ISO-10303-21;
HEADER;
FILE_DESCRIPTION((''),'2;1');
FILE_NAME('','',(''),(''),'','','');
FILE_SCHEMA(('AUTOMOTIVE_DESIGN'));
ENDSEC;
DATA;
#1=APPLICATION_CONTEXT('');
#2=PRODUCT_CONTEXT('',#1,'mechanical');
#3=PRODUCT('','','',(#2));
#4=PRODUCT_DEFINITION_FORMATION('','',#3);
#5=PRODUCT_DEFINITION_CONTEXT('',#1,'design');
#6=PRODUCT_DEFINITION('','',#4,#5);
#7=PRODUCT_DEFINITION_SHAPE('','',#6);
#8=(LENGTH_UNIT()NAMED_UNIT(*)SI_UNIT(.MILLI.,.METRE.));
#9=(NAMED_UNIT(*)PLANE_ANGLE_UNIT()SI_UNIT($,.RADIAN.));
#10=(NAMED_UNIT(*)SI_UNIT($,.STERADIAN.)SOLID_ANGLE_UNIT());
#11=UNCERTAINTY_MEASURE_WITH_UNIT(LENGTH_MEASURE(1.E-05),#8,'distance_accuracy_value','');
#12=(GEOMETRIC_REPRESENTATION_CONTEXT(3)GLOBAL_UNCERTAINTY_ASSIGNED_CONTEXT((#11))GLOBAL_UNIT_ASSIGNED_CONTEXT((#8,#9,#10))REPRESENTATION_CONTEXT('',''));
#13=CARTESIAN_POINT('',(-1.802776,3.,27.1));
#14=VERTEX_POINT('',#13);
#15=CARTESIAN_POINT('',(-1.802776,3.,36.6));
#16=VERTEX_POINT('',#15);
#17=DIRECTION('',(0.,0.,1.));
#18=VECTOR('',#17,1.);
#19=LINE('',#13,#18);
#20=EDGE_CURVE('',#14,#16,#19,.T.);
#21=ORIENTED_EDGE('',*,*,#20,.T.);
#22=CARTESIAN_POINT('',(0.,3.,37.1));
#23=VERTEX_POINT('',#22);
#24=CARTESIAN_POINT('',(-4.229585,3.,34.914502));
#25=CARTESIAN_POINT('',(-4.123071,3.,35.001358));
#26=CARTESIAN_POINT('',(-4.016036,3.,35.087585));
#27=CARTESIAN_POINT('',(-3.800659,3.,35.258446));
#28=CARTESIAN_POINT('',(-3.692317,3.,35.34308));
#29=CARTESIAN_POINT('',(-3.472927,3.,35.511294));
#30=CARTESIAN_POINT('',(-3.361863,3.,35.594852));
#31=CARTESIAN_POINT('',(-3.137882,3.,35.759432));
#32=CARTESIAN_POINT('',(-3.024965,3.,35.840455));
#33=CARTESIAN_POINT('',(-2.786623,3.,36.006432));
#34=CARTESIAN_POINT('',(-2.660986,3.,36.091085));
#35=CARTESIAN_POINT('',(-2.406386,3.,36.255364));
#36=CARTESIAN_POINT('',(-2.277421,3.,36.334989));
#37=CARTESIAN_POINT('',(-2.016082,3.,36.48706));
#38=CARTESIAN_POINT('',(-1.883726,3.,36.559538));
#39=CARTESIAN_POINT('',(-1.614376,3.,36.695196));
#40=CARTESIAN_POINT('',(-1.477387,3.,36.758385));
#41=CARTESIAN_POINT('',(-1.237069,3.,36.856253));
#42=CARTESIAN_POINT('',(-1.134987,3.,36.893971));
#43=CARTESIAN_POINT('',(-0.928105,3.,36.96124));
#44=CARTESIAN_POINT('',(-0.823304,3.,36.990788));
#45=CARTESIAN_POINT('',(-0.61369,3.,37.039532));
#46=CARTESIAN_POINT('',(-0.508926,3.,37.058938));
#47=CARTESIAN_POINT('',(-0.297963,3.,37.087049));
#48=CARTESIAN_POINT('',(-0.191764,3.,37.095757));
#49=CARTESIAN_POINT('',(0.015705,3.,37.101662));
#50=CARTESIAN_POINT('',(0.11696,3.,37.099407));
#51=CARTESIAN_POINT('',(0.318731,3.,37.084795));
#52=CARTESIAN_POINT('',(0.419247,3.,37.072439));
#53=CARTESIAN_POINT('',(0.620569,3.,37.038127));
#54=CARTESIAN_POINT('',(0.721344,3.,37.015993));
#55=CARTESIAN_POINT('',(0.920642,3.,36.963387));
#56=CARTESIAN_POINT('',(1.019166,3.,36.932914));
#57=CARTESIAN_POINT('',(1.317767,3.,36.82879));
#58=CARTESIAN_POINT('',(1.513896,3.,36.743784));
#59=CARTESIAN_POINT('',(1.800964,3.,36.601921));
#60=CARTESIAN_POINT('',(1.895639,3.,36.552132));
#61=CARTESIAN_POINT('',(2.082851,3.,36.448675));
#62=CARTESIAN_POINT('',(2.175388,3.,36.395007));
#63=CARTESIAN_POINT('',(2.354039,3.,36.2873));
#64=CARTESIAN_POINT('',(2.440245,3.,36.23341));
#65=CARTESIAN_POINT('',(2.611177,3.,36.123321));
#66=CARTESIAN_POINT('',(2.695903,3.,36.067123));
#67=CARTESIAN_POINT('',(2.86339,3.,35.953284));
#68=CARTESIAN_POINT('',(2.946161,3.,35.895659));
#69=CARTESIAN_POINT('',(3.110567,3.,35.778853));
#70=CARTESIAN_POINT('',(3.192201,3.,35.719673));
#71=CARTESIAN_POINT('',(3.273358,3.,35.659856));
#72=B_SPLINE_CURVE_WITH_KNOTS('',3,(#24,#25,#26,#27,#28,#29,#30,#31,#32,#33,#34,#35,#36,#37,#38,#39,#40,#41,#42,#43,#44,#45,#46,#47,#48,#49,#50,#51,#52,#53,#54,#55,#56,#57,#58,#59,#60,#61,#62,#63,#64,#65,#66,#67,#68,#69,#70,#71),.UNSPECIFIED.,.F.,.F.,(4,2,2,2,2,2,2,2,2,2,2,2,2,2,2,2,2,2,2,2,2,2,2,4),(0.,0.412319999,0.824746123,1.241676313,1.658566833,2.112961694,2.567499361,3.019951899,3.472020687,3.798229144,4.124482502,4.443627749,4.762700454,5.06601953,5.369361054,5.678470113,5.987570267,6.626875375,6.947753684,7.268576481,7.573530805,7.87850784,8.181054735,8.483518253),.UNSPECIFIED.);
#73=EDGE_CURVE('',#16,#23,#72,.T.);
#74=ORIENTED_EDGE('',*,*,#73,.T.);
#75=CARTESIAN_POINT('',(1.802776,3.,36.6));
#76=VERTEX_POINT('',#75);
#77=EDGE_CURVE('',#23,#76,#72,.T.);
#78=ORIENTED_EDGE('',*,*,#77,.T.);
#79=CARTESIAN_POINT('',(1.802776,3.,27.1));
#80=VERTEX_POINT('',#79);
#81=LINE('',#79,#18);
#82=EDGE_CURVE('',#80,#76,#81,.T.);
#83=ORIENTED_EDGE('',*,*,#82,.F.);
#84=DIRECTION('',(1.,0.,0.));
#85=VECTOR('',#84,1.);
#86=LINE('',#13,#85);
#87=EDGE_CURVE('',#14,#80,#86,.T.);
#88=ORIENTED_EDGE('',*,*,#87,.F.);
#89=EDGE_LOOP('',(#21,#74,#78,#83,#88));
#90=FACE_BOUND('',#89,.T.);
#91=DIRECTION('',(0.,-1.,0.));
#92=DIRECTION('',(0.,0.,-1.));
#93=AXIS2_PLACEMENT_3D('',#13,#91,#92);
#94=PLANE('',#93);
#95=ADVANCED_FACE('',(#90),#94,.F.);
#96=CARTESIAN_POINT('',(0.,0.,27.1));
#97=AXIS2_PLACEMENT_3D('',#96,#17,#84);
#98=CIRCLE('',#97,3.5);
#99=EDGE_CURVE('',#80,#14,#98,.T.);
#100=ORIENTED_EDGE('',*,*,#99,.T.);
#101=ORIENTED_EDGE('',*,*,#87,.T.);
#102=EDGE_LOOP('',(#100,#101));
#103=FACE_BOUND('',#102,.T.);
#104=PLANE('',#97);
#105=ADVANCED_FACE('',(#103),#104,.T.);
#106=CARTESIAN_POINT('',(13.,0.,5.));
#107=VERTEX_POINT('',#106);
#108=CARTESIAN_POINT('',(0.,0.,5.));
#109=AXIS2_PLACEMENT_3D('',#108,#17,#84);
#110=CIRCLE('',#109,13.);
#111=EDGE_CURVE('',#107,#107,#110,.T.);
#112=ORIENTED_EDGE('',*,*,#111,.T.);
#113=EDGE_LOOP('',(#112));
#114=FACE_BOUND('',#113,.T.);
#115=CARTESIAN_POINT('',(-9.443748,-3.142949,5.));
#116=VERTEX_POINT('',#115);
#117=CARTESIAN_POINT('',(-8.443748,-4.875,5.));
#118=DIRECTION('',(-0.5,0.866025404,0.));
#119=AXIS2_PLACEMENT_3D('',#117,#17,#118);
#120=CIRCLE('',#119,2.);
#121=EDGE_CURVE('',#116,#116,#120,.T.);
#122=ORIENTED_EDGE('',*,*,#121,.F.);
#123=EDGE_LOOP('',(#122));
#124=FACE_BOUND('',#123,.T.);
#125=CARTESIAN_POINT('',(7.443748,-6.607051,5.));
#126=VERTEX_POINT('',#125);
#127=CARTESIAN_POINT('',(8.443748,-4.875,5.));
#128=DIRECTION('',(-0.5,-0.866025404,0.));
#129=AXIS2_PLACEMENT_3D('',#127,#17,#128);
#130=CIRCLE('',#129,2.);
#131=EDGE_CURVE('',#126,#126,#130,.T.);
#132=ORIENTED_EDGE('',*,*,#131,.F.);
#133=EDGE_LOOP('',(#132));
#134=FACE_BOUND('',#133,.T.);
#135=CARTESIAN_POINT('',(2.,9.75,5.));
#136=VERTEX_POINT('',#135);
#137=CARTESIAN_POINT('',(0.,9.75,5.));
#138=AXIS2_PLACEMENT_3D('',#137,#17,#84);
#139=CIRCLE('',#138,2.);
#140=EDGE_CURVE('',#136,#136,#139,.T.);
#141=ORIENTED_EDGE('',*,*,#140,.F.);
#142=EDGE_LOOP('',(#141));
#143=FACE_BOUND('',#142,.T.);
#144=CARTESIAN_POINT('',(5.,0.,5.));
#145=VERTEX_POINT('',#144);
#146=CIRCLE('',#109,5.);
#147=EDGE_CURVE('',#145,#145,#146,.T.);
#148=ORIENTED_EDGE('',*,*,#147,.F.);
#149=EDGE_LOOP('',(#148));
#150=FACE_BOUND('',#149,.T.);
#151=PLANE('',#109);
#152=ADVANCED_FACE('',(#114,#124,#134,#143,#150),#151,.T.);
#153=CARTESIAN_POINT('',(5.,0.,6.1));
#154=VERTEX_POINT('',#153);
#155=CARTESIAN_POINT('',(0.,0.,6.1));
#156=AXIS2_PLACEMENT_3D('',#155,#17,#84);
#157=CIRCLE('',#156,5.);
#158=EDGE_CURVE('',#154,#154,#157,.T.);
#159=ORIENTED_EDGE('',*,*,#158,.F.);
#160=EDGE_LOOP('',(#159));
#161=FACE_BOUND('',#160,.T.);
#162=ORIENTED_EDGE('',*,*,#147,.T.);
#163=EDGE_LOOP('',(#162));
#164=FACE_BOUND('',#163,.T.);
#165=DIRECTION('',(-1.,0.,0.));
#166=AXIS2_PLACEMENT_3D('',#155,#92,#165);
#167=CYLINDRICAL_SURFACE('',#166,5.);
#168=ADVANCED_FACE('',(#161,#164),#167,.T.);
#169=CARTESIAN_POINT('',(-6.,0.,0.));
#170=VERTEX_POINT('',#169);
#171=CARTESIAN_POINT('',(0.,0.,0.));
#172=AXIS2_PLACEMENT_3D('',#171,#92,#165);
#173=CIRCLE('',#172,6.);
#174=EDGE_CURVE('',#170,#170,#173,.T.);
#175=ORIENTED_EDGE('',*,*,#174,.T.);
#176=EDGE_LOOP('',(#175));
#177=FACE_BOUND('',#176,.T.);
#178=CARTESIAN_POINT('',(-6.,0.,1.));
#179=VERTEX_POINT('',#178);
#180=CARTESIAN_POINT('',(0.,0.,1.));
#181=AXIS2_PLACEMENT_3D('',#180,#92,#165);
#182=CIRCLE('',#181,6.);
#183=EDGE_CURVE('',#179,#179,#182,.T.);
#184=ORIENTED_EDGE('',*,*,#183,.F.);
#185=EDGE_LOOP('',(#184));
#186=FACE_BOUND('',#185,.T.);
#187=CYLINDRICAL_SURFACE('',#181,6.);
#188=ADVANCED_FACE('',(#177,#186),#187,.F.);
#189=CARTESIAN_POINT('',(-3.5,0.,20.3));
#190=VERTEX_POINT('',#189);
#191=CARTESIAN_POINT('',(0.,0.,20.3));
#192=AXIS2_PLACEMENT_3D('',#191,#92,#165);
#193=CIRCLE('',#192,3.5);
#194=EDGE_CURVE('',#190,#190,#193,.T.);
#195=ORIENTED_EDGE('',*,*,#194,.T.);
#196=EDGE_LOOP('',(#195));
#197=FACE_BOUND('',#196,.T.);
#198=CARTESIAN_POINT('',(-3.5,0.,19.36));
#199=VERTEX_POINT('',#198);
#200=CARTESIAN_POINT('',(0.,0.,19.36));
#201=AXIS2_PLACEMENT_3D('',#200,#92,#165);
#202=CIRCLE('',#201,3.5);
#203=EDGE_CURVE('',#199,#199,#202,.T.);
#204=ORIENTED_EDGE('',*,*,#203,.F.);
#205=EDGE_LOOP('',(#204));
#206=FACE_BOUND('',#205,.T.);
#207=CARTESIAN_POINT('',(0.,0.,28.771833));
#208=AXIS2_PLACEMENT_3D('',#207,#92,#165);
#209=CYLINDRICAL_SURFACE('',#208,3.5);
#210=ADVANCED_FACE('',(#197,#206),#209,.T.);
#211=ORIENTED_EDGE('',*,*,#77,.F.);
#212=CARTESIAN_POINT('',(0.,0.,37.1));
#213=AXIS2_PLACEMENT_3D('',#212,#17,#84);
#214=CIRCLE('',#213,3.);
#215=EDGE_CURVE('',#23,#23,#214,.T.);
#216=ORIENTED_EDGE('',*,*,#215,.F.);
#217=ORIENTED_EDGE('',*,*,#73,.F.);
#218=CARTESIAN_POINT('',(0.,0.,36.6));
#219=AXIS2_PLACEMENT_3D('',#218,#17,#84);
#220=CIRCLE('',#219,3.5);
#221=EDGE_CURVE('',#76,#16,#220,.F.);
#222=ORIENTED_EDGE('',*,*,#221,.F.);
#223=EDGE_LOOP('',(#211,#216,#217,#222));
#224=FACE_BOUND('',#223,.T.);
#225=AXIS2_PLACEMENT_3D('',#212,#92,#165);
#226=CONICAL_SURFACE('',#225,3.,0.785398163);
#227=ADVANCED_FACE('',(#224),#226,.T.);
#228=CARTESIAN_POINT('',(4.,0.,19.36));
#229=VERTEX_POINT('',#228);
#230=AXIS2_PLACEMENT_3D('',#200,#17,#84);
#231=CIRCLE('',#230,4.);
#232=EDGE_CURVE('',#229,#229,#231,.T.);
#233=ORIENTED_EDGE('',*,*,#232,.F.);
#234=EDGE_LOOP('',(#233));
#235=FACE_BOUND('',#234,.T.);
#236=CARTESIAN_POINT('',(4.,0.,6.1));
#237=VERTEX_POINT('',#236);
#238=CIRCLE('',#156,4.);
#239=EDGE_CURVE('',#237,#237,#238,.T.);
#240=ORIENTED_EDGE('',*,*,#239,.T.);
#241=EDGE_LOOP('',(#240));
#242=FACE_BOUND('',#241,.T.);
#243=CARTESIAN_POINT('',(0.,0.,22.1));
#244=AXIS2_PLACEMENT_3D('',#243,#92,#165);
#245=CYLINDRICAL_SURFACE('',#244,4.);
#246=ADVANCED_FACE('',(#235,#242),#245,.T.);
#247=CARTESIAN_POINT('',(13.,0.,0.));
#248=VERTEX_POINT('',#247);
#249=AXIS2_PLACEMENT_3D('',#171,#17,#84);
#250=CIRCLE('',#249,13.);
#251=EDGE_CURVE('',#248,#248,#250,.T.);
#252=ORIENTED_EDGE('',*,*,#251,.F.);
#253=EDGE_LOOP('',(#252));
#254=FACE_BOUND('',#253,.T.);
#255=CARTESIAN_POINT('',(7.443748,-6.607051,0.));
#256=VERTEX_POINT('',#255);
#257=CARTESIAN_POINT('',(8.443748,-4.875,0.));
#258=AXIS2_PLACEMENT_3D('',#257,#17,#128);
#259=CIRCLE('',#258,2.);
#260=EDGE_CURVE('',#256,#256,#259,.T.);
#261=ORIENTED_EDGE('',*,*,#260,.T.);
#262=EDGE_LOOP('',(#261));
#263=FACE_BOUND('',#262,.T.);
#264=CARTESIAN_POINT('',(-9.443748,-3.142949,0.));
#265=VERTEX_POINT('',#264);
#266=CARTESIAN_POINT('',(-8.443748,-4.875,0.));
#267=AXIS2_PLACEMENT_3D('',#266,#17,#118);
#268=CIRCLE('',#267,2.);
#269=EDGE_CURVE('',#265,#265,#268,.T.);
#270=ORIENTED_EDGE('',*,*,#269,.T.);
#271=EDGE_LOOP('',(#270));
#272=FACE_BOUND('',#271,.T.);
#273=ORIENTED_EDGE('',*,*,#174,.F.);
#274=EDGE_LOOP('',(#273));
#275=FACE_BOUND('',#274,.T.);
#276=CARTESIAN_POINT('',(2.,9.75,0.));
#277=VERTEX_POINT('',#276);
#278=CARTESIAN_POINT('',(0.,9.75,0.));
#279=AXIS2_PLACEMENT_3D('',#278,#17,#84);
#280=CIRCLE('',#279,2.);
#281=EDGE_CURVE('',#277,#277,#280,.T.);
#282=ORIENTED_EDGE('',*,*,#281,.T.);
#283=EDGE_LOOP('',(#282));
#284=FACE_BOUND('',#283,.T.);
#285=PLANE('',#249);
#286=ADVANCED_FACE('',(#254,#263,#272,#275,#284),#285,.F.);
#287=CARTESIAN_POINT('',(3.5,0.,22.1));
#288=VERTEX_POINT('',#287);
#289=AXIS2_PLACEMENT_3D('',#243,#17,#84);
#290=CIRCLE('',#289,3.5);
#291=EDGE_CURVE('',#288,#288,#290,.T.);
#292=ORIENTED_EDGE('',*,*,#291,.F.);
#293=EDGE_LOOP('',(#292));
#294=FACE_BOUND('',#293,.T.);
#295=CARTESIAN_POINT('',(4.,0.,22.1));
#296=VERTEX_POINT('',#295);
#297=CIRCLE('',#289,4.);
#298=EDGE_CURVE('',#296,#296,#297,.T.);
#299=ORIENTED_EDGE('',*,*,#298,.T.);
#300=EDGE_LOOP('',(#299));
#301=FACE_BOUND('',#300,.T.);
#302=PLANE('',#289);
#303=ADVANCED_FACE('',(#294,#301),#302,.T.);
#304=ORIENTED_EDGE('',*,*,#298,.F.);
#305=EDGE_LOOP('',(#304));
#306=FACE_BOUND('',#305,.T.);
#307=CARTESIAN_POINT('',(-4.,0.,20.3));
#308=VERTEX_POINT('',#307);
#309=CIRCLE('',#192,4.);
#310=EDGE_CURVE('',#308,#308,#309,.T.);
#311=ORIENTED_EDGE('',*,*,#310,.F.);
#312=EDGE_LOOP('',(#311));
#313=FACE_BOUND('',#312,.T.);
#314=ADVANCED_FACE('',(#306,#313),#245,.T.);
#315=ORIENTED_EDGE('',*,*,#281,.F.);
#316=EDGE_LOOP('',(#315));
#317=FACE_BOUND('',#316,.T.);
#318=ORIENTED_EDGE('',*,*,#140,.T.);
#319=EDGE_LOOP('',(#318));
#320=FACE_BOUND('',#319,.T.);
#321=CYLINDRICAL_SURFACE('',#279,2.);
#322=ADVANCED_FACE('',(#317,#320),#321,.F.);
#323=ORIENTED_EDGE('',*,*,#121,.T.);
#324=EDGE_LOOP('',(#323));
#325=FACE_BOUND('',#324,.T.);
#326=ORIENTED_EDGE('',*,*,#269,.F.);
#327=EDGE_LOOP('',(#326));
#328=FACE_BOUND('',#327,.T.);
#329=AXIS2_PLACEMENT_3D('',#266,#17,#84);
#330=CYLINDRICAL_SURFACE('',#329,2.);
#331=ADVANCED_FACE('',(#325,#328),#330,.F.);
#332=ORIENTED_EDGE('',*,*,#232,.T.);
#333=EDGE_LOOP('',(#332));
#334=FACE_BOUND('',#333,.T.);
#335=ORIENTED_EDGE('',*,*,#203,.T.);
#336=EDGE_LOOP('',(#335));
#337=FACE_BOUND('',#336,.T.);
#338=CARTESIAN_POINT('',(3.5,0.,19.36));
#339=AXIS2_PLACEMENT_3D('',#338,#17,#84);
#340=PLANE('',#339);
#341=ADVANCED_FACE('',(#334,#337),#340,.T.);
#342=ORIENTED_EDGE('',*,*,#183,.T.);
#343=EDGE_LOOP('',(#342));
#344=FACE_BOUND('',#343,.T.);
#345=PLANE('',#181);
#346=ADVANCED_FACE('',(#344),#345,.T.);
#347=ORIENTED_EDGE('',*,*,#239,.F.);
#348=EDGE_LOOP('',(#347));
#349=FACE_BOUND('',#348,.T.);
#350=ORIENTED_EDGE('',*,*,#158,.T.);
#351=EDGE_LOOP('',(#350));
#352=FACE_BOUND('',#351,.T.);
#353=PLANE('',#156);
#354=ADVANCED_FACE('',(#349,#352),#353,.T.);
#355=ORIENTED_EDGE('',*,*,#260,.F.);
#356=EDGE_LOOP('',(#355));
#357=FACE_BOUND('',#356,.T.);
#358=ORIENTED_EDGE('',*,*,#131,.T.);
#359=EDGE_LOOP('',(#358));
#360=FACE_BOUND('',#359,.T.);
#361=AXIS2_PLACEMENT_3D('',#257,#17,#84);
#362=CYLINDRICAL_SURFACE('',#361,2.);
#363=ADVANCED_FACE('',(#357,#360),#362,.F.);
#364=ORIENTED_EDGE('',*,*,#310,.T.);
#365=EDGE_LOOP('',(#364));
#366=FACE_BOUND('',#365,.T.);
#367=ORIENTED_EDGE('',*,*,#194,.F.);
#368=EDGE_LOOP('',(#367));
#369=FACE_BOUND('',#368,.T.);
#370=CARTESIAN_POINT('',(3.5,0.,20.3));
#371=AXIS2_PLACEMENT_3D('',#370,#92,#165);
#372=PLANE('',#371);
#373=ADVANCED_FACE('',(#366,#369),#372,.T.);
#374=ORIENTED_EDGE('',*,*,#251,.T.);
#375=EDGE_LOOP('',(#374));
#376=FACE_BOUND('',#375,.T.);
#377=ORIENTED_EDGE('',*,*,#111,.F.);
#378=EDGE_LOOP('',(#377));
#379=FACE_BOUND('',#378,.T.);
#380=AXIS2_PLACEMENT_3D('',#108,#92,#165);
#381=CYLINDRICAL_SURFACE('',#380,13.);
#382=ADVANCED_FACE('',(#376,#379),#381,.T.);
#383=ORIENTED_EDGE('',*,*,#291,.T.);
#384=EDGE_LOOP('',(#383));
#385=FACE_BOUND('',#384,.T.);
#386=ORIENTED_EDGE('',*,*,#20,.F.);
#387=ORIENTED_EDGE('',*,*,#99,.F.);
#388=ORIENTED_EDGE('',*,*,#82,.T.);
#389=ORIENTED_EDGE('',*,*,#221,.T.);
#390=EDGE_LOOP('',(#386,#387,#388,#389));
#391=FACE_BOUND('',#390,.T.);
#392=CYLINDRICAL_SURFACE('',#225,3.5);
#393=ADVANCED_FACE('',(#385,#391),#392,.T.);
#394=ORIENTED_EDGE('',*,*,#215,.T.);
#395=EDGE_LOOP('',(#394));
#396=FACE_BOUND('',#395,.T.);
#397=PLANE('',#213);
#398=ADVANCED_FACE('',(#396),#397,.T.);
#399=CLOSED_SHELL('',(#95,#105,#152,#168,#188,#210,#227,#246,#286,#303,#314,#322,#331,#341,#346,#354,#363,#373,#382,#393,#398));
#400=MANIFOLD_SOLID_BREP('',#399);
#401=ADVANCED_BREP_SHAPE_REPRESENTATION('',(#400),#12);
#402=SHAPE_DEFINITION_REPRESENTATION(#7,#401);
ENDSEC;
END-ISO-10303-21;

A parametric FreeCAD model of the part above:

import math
import FreeCAD as App
import Part
import Sketcher

V = App.Vector
Q = App.Units.Quantity


def edges_at(feature, points):
    """Names of the edges that pass closest to the given points."""
    edges = feature.Shape.Edges
    near = lambda p: min(range(len(edges)), key=lambda i: edges[i].distToShape(Part.Vertex(*p))[0])
    return sorted({f"Edge{near(p) + 1}" for p in points})


def add_polygon(sketch, points):
    """Adds a closed chain of lines whose ends are joined by coincident constraints."""
    first, n = sketch.GeometryCount, len(points)
    for a, b in zip(points, points[1:] + points[:1]):
        sketch.addGeometry(Part.LineSegment(App.Vector(*a, 0), App.Vector(*b, 0)), False)
    for i in range(n):
        sketch.addConstraint(Sketcher.Constraint("Coincident", first + i, 2, first + (i + 1) % n, 1))

doc = App.newDocument("Part")
body = doc.addObject("PartDesign::Body", "Body")

# Sketch on XY plane
sketch1 = body.newObject("Sketcher::SketchObject", "Sketch")
sketch1.AttachmentSupport = (doc.getObject("XY_Plane"), [""])
sketch1.MapMode = "FlatFace"
sketch1.addGeometry(Part.Circle(V(0, 0, 0), V(0, 0, 1), 13), False)
sketch1.addConstraint([
    Sketcher.Constraint("Coincident", 0, 3, -1, 1),
    Sketcher.Constraint("Diameter", 0, Q("26 mm")),
])
pad1 = body.newObject("PartDesign::Pad", "Pad")
pad1.Profile = sketch1
pad1.Length = 5

# Sketch on XY plane
sketch2 = body.newObject("Sketcher::SketchObject", "Sketch001")
sketch2.AttachmentSupport = (doc.getObject("XY_Plane"), [""])
sketch2.MapMode = "FlatFace"
sketch2.AttachmentOffset = App.Placement(V(0, 0, 5), App.Rotation())
sketch2.addGeometry(Part.Circle(V(0, 0, 0), V(0, 0, 1), 5), False)
sketch2.addConstraint([
    Sketcher.Constraint("Coincident", 0, 3, -1, 1),
    Sketcher.Constraint("Diameter", 0, Q("10 mm")),
])
pad2 = body.newObject("PartDesign::Pad", "Pad001")
pad2.Profile = sketch2
pad2.Length = 1.1

# Sketch on XY plane
sketch3 = body.newObject("Sketcher::SketchObject", "Sketch002")
sketch3.AttachmentSupport = (doc.getObject("XY_Plane"), [""])
sketch3.MapMode = "FlatFace"
sketch3.AttachmentOffset = App.Placement(V(0, 0, 6.1), App.Rotation())
sketch3.addGeometry(Part.Circle(V(0, 0, 0), V(0, 0, 1), 4), False)
sketch3.addConstraint([
    Sketcher.Constraint("Coincident", 0, 3, -1, 1),
    Sketcher.Constraint("Diameter", 0, Q("8 mm")),
])
pad3 = body.newObject("PartDesign::Pad", "Pad002")
pad3.Profile = sketch3
pad3.Length = 16

# Sketch on XY plane
sketch4 = body.newObject("Sketcher::SketchObject", "Sketch003")
sketch4.AttachmentSupport = (doc.getObject("XY_Plane"), [""])
sketch4.MapMode = "FlatFace"
sketch4.AttachmentOffset = App.Placement(V(0, 0, 22.1), App.Rotation())
sketch4.addGeometry(Part.Circle(V(0, 0, 0), V(0, 0, 1), 3.5), False)
sketch4.addConstraint([
    Sketcher.Constraint("Coincident", 0, 3, -1, 1),
    Sketcher.Constraint("Diameter", 0, Q("7 mm")),
])
pad4 = body.newObject("PartDesign::Pad", "Pad003")
pad4.Profile = sketch4
pad4.Length = 15

# Sketch on XY plane
sketch5 = body.newObject("Sketcher::SketchObject", "Sketch004")
sketch5.AttachmentSupport = (doc.getObject("XY_Plane"), [""])
sketch5.MapMode = "FlatFace"
sketch5.AttachmentOffset = App.Placement(V(0, 0, 5), App.Rotation())
sketch5.addGeometry(Part.Circle(V(0, 9.75, 0), V(0, 0, 1), 2), False)
sketch5.addConstraint([
    Sketcher.Constraint("PointOnObject", 0, 3, -2),
    Sketcher.Constraint("Diameter", 0, Q("4 mm")),
    Sketcher.Constraint("DistanceY", -1, 1, 0, 3, Q("9.75 mm")),
])
pocket1 = body.newObject("PartDesign::Pocket", "Pocket")
pocket1.Profile = sketch5
pocket1.Type = "ThroughAll"
doc.recompute()

polarpattern = body.newObject("PartDesign::PolarPattern", "PolarPattern")
polarpattern.Originals = [pocket1]
polarpattern.Axis = (doc.getObject("Z_Axis"), [""])
polarpattern.Angle = 360
polarpattern.Occurrences = 3
body.Tip = polarpattern

# Sketch on XZ plane
sketch6 = body.newObject("Sketcher::SketchObject", "Sketch005")
sketch6.AttachmentSupport = (doc.getObject("XZ_Plane"), [""])
sketch6.MapMode = "FlatFace"
add_polygon(sketch6, [(3.5, 19.36), (3.5, 20.3), (6.616395, 20.3), (6.616395, 19.36)])  # lines 0-3
sketch6.addConstraint([
    Sketcher.Constraint("Vertical", 0),
    Sketcher.Constraint("Horizontal", 1),
    Sketcher.Constraint("Vertical", 2),
    Sketcher.Constraint("Horizontal", 3),
    Sketcher.Constraint("DistanceY", 0, 1, 0, 2, Q("0.94 mm")),
    Sketcher.Constraint("DistanceX", -1, 1, 0, 2, Q("3.5 mm")),
    Sketcher.Constraint("DistanceY", -1, 1, 0, 2, Q("20.3 mm")),
    Sketcher.Constraint("DistanceX", 1, 1, 1, 2, Q("3.116395 mm")),
])
groove = body.newObject("PartDesign::Groove", "Groove")
groove.Profile = sketch6
groove.ReferenceAxis = (sketch6, ["V_Axis"])
groove.Angle = 360
doc.recompute()

chamfer = body.newObject("PartDesign::Chamfer", "Chamfer")
chamfer.Base = (groove, edges_at(groove, [(-3.5, 0, 37.1)]))
chamfer.Size = 0.5

# Sketch on XY plane
sketch7 = body.newObject("Sketcher::SketchObject", "Sketch006")
sketch7.AttachmentSupport = (doc.getObject("XY_Plane"), [""])
sketch7.MapMode = "FlatFace"
sketch7.AttachmentOffset = App.Placement(V(0, 0, 37.1), App.Rotation())
sketch7.addGeometry([
    Part.LineSegment(V(-1.802776, 3, 0), V(1.802776, 3, 0)),
    Part.ArcOfCircle(Part.Circle(V(0, 0, 0), V(0, 0, 1), 3.5), math.radians(58.997281), math.radians(121.002719)),
], False)
sketch7.addConstraint([
    Sketcher.Constraint("Coincident", 0, 1, 1, 2),
    Sketcher.Constraint("Coincident", 1, 1, 0, 2),
    Sketcher.Constraint("Horizontal", 0),
    Sketcher.Constraint("Coincident", 1, 3, -1, 1),
    Sketcher.Constraint("Radius", 1, Q("3.5 mm")),
    Sketcher.Constraint("DistanceY", -1, 1, 0, 1, Q("3 mm")),
])
pocket2 = body.newObject("PartDesign::Pocket", "Pocket001")
pocket2.Profile = sketch7
pocket2.Length = 10

# Sketch on XY plane
sketch8 = body.newObject("Sketcher::SketchObject", "Sketch007")
sketch8.AttachmentSupport = (doc.getObject("XY_Plane"), [""])
sketch8.MapMode = "FlatFace"
sketch8.addGeometry(Part.Circle(V(0, 0, 0), V(0, 0, 1), 6), False)
sketch8.addConstraint([
    Sketcher.Constraint("Coincident", 0, 3, -1, 1),
    Sketcher.Constraint("Diameter", 0, Q("12 mm")),
])
pocket3 = body.newObject("PartDesign::Pocket", "Pocket002")
pocket3.Profile = sketch8
pocket3.Length = 1
pocket3.Reversed = True

doc.recompute()
